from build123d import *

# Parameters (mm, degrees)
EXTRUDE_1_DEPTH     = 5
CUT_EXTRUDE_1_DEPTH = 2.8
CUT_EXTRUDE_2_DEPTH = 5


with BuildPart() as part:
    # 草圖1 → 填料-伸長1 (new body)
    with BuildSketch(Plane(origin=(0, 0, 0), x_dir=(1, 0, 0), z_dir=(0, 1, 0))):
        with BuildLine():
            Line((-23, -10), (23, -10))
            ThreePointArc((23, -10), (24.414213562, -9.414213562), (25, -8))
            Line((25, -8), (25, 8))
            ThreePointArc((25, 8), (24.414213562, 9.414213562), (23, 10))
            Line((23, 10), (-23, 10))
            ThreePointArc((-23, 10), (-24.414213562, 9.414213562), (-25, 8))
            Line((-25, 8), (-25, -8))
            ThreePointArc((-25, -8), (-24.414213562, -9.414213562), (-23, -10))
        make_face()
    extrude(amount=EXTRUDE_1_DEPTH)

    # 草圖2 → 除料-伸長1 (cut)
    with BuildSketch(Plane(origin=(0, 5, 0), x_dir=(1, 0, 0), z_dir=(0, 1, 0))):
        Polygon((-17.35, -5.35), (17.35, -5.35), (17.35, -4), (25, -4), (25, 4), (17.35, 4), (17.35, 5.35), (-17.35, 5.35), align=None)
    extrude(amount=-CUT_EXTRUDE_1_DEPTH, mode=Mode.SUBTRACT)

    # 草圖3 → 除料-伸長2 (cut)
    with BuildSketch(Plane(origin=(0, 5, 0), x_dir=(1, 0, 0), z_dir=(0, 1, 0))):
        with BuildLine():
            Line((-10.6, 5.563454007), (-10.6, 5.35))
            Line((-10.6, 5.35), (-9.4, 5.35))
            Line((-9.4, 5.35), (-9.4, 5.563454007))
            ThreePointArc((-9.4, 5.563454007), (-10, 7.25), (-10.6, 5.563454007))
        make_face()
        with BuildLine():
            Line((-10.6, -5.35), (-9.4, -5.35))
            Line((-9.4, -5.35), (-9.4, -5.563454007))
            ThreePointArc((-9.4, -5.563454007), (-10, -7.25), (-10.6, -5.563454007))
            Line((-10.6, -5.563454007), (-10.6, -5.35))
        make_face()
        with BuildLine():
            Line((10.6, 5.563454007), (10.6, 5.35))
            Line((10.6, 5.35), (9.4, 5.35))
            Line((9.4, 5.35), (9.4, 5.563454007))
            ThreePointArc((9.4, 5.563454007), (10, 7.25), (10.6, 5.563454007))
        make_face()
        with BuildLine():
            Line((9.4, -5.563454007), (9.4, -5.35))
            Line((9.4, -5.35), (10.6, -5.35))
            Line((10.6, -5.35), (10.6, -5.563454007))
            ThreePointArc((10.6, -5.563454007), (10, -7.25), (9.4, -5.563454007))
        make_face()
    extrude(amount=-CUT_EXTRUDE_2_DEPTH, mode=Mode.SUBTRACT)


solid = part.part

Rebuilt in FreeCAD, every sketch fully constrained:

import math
import FreeCAD as App
import Part
import Sketcher


def add_polygon(sketch, points):
    """Adds a closed chain of lines whose ends are joined by coincident constraints."""
    first, n = sketch.GeometryCount, len(points)
    for a, b in zip(points, points[1:] + points[:1]):
        sketch.addGeometry(Part.LineSegment(App.Vector(*a, 0), App.Vector(*b, 0)), False)
    for i in range(n):
        sketch.addConstraint(Sketcher.Constraint("Coincident", first + i, 2, first + (i + 1) % n, 1))

doc = App.newDocument("Part")
body = doc.addObject("PartDesign::Body", "Body")

# Sketch on XZ plane
sketch1 = doc.addObject("Sketcher::SketchObject", "Sketch")
body.addObject(sketch1)
sketch1.AttachmentSupport = (doc.XZ_Plane, [""])
sketch1.MapMode = "FlatFace"
sketch1.addGeometry([
    Part.LineSegment(App.Vector(-23, 10, 0), App.Vector(23, 10, 0)),  # 0
    Part.ArcOfCircle(Part.Circle(App.Vector(23, 8, 0), App.Vector(0, 0, 1), 2), math.radians(0), math.radians(90)),  # 1
    Part.LineSegment(App.Vector(25, 8, 0), App.Vector(25, -8, 0)),  # 2
    Part.ArcOfCircle(Part.Circle(App.Vector(23, -8, 0), App.Vector(0, 0, 1), 2), math.radians(-90), math.radians(0)),  # 3
    Part.LineSegment(App.Vector(23, -10, 0), App.Vector(-23, -10, 0)),  # 4
    Part.ArcOfCircle(Part.Circle(App.Vector(-23, -8, 0), App.Vector(0, 0, 1), 2), math.radians(-180), math.radians(-90)),  # 5
    Part.LineSegment(App.Vector(-25, -8, 0), App.Vector(-25, 8, 0)),  # 6
    Part.ArcOfCircle(Part.Circle(App.Vector(-23, 8, 0), App.Vector(0, 0, 1), 2), math.radians(90), math.radians(180)),  # 7
], False)
sketch1.addConstraint([
    Sketcher.Constraint("Tangent", 0, 2, 1, 2),
    Sketcher.Constraint("Tangent", 1, 1, 2, 1),
    Sketcher.Constraint("Tangent", 2, 2, 3, 2),
    Sketcher.Constraint("Tangent", 3, 1, 4, 1),
    Sketcher.Constraint("Tangent", 4, 2, 5, 2),
    Sketcher.Constraint("Tangent", 5, 1, 6, 1),
    Sketcher.Constraint("Tangent", 6, 2, 7, 2),
    Sketcher.Constraint("Tangent", 7, 1, 0, 1),
    Sketcher.Constraint("Horizontal", 0),
    Sketcher.Constraint("Vertical", 2),
    Sketcher.Constraint("Horizontal", 4),
    Sketcher.Constraint("Vertical", 6),
    Sketcher.Constraint("Equal", 1, 3),
    Sketcher.Constraint("Equal", 3, 5),
    Sketcher.Constraint("Equal", 5, 7),
    Sketcher.Constraint("Symmetric", 1, 3, 5, 3, -1, 1),
    Sketcher.Constraint("Radius", 1, 2.0),
    Sketcher.Constraint("DistanceX", 0, 1, 0, 2, 46.0),
    Sketcher.Constraint("DistanceY", 2, 2, 2, 1, 16.0),
])
pad1 = doc.addObject("PartDesign::Pad", "Pad")
body.addObject(pad1)
pad1.Profile = sketch1
pad1.Length = 5
pad1.Reversed = True

# Sketch on XZ plane
sketch2 = doc.addObject("Sketcher::SketchObject", "Sketch001")
body.addObject(sketch2)
sketch2.AttachmentSupport = (doc.XZ_Plane, [""])
sketch2.MapMode = "FlatFace"
sketch2.AttachmentOffset = App.Placement(App.Vector(0, 0, -5), App.Rotation())
add_polygon(sketch2, [(-17.4, 5.3), (17.4, 5.3), (17.4, 4), (25, 4), (25, -4), (17.4, -4), (17.4, -5.3), (-17.4, -5.3)])  # lines 0-7
sketch2.addConstraint([
    Sketcher.Constraint("Horizontal", 0),
    Sketcher.Constraint("Vertical", 1),
    Sketcher.Constraint("Horizontal", 2),
    Sketcher.Constraint("Vertical", 3),
    Sketcher.Constraint("Horizontal", 4),
    Sketcher.Constraint("Vertical", 5),
    Sketcher.Constraint("Horizontal", 6),
    Sketcher.Constraint("Vertical", 7),
    Sketcher.Constraint("Symmetric", 0, 2, 6, 2, -1, 1),
    Sketcher.Constraint("Symmetric", 1, 2, 4, 2, -1),
    Sketcher.Constraint("DistanceY", 3, 2, 3, 1, 8.0),
    Sketcher.Constraint("DistanceX", 0, 1, 0, 2, 34.7),
    Sketcher.Constraint("DistanceY", 7, 1, 7, 2, 10.7),
    Sketcher.Constraint("DistanceX", -1, 1, 2, 2, 25.0),
])
pocket1 = doc.addObject("PartDesign::Pocket", "Pocket")
body.addObject(pocket1)
pocket1.Profile = sketch2
pocket1.Length = 2.8
pocket1.Reversed = True

# Sketch on XZ plane
sketch3 = doc.addObject("Sketcher::SketchObject", "Sketch002")
body.addObject(sketch3)
sketch3.AttachmentSupport = (doc.XZ_Plane, [""])
sketch3.MapMode = "FlatFace"
sketch3.AttachmentOffset = App.Placement(App.Vector(0, 0, -5), App.Rotation())
sketch3.addGeometry([
    Part.LineSegment(App.Vector(-10.6, -5.56, 0), App.Vector(-10.6, -5.35, 0)),  # 0
    Part.LineSegment(App.Vector(-10.6, -5.35, 0), App.Vector(-9.4, -5.35, 0)),  # 1
    Part.LineSegment(App.Vector(-9.4, -5.35, 0), App.Vector(-9.4, -5.56, 0)),  # 2
    Part.ArcOfCircle(Part.Circle(App.Vector(-10, -6.3, 0), App.Vector(0, 0, 1), 0.95), math.radians(129), math.radians(411)),  # 3
    Part.LineSegment(App.Vector(-9.4, 5.35, 0), App.Vector(-10.6, 5.35, 0)),  # 4
    Part.LineSegment(App.Vector(-10.6, 5.35, 0), App.Vector(-10.6, 5.56, 0)),  # 5
    Part.ArcOfCircle(Part.Circle(App.Vector(-10, 6.3, 0), App.Vector(0, 0, 1), 0.95), math.radians(-51), math.radians(231)),  # 6
    Part.LineSegment(App.Vector(-9.4, 5.56, 0), App.Vector(-9.4, 5.35, 0)),  # 7
    Part.LineSegment(App.Vector(10.6, -5.35, 0), App.Vector(10.6, -5.56, 0)),  # 8
    Part.ArcOfCircle(Part.Circle(App.Vector(10, -6.3, 0), App.Vector(0, 0, 1), 0.95), math.radians(129), math.radians(411)),  # 9
    Part.LineSegment(App.Vector(9.4, -5.56, 0), App.Vector(9.4, -5.35, 0)),  # 10
    Part.LineSegment(App.Vector(9.4, -5.35, 0), App.Vector(10.6, -5.35, 0)),  # 11
    Part.LineSegment(App.Vector(9.4, 5.35, 0), App.Vector(9.4, 5.56, 0)),  # 12
    Part.ArcOfCircle(Part.Circle(App.Vector(10, 6.3, 0), App.Vector(0, 0, 1), 0.95), math.radians(-51), math.radians(231)),  # 13
    Part.LineSegment(App.Vector(10.6, 5.56, 0), App.Vector(10.6, 5.35, 0)),  # 14
    Part.LineSegment(App.Vector(10.6, 5.35, 0), App.Vector(9.4, 5.35, 0)),  # 15
], False)
sketch3.addConstraint([
    Sketcher.Constraint("Coincident", 0, 2, 1, 1),
    Sketcher.Constraint("Coincident", 1, 2, 2, 1),
    Sketcher.Constraint("Coincident", 2, 2, 3, 2),
    Sketcher.Constraint("Coincident", 3, 1, 0, 1),
    Sketcher.Constraint("Coincident", 4, 2, 5, 1),
    Sketcher.Constraint("Coincident", 5, 2, 6, 2),
    Sketcher.Constraint("Coincident", 6, 1, 7, 1),
    Sketcher.Constraint("Coincident", 7, 2, 4, 1),
    Sketcher.Constraint("Coincident", 8, 2, 9, 2),
    Sketcher.Constraint("Coincident", 9, 1, 10, 1),
    Sketcher.Constraint("Coincident", 10, 2, 11, 1),
    Sketcher.Constraint("Coincident", 11, 2, 8, 1),
    Sketcher.Constraint("Coincident", 12, 2, 13, 2),
    Sketcher.Constraint("Coincident", 13, 1, 14, 1),
    Sketcher.Constraint("Coincident", 14, 2, 15, 1),
    Sketcher.Constraint("Coincident", 15, 2, 12, 1),
    Sketcher.Constraint("Vertical", 0),
    Sketcher.Constraint("Horizontal", 1),
    Sketcher.Constraint("Vertical", 2),
    Sketcher.Constraint("Horizontal", 4),
    Sketcher.Constraint("Vertical", 5),
    Sketcher.Constraint("Vertical", 7),
    Sketcher.Constraint("Vertical", 8),
    Sketcher.Constraint("Vertical", 10),
    Sketcher.Constraint("Horizontal", 11),
    Sketcher.Constraint("Vertical", 12),
    Sketcher.Constraint("Vertical", 14),
    Sketcher.Constraint("Horizontal", 15),
    Sketcher.Constraint("Equal", 3, 6),
    Sketcher.Constraint("Equal", 6, 9),
    Sketcher.Constraint("Equal", 9, 13),
    Sketcher.Constraint("Symmetric", 6, 3, 9, 3, -1, 1),
    Sketcher.Constraint("Symmetric", 3, 3, 13, 3, -1, 1),
    Sketcher.Constraint("Symmetric", 7, 2, 10, 2, -1, 1),
    Sketcher.Constraint("Symmetric", 0, 2, 14, 2, -1, 1),
    Sketcher.Constraint("Symmetric", 3, 3, 9, 3, -2),
    Sketcher.Constraint("Symmetric", 1, 2, 10, 2, -2),
    Sketcher.Constraint("Horizontal", 2, 2, 3, 1),
    Sketcher.Constraint("Horizontal", 5, 2, 6, 1),
    Sketcher.Constraint("Horizontal", 3, 1, 8, 2),
    Sketcher.Constraint("Horizontal", 6, 1, 12, 2),
    Sketcher.Constraint("Radius", 3, 0.95),
    Sketcher.Constraint("DistanceX", 1, 1, 1, 2, 1.2),
    Sketcher.Constraint("DistanceX", 3, 3, -1, 1, 10.0),
    Sketcher.Constraint("DistanceY", 3, 3, -1, 1, 6.3),
    Sketcher.Constraint("DistanceY", 0, 2, 4, 2, 10.7),
])
pocket2 = doc.addObject("PartDesign::Pocket", "Pocket001")
body.addObject(pocket2)
pocket2.Profile = sketch3
pocket2.Length = 5
pocket2.Reversed = True

doc.recompute()
